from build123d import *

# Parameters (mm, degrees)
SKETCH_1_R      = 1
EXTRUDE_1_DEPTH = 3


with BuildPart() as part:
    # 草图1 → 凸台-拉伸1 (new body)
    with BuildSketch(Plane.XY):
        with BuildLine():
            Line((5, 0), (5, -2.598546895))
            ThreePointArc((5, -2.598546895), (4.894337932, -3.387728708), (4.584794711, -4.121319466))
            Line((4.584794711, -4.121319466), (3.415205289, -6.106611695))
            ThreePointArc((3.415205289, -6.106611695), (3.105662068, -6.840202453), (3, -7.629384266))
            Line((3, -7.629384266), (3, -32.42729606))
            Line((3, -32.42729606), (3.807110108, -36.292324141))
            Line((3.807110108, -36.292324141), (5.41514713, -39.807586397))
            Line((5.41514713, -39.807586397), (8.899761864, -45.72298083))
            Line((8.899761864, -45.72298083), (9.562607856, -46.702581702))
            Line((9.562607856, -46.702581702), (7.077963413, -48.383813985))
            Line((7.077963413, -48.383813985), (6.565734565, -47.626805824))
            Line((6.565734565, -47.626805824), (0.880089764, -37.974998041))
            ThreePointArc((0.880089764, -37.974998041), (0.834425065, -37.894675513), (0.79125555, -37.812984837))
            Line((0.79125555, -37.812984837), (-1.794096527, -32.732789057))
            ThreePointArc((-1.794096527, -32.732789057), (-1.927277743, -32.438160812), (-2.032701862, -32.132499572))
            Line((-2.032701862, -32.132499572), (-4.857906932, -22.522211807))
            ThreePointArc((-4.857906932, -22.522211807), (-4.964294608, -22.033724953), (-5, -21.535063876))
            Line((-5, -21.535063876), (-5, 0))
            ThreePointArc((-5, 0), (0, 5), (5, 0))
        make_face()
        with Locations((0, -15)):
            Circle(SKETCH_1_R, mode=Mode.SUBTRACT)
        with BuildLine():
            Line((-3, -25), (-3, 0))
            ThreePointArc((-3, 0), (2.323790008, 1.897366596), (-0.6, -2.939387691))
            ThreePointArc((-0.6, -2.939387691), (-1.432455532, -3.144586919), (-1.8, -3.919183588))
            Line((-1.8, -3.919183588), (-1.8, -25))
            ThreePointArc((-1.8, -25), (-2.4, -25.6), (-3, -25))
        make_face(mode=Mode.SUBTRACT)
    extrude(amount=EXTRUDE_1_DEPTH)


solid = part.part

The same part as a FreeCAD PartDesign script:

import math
import FreeCAD as App
import Part
import Sketcher
from FreeCAD import Vector

doc = App.newDocument("Part")
body = doc.addObject("PartDesign::Body", "Body")

sketch1 = body.newObject("Sketcher::SketchObject", "Sketch")
sketch1.AttachmentSupport = (doc.getObject("XY_Plane"), [""])
sketch1.MapMode = "FlatFace"
sketch1.addGeometry(Part.LineSegment(Vector(5, -2.6, 0), Vector(5, 0, 0)), False)
sketch1.addGeometry(Part.ArcOfCircle(Part.Circle(Vector(0, 0, 0), Vector(0, 0, 1), 5), math.radians(0), math.radians(180)), False)
sketch1.addGeometry(Part.LineSegment(Vector(-5, 0, 0), Vector(-5, -21.54, 0)), False)
sketch1.addGeometry(Part.ArcOfCircle(Part.Circle(Vector(-1.5, -21.54, 0), Vector(0, 0, 1), 3.5), math.radians(180), math.radians(196.38)), False)
sketch1.addGeometry(Part.LineSegment(Vector(-4.86, -22.52, 0), Vector(-2.03, -32.13, 0)), False)
sketch1.addGeometry(Part.ArcOfCircle(Part.Circle(Vector(1.33, -31.15, 0), Vector(0, 0, 1), 3.5), math.radians(-163.62), math.radians(-153.03)), False)
sketch1.addGeometry(Part.LineSegment(Vector(-1.79, -32.73, 0), Vector(0.79, -37.81, 0)), False)
sketch1.addGeometry(Part.ArcOfCircle(Part.Circle(Vector(3.46, -36.45, 0), Vector(0, 0, 1), 3), math.radians(-153.03), math.radians(-149.5)), False)
sketch1.addGeometry(Part.LineSegment(Vector(0.88, -37.97, 0), Vector(6.57, -47.63, 0)), False)
sketch1.addGeometry(Part.LineSegment(Vector(6.57, -47.63, 0), Vector(7.08, -48.38, 0)), False)
sketch1.addGeometry(Part.LineSegment(Vector(7.08, -48.38, 0), Vector(9.56, -46.7, 0)), False)
sketch1.addGeometry(Part.LineSegment(Vector(9.56, -46.7, 0), Vector(8.9, -45.72, 0)), False)
sketch1.addGeometry(Part.LineSegment(Vector(8.9, -45.72, 0), Vector(5.42, -39.81, 0)), False)
sketch1.addGeometry(Part.LineSegment(Vector(5.42, -39.81, 0), Vector(3.81, -36.29, 0)), False)
sketch1.addGeometry(Part.LineSegment(Vector(3.81, -36.29, 0), Vector(3, -32.43, 0)), False)
sketch1.addGeometry(Part.LineSegment(Vector(3, -32.43, 0), Vector(3, -7.63, 0)), False)
sketch1.addGeometry(Part.ArcOfCircle(Part.Circle(Vector(6, -7.63, 0), Vector(0, 0, 1), 3), math.radians(149), math.radians(180)), False)
sketch1.addGeometry(Part.LineSegment(Vector(3.42, -6.11, 0), Vector(4.58, -4.12, 0)), False)
sketch1.addGeometry(Part.ArcOfCircle(Part.Circle(Vector(2, -2.6, 0), Vector(0, 0, 1), 3), math.radians(-31), math.radians(0)), False)
sketch1.addGeometry(Part.Circle(Vector(0, -15, 0), Vector(0, 0, 1), 1), False)
sketch1.addGeometry(Part.LineSegment(Vector(-3, -25, 0), Vector(-3, 0, 0)), False)
sketch1.addGeometry(Part.ArcOfCircle(Part.Circle(Vector(0, 0, 0), Vector(0, 0, 1), 3), math.radians(-102), math.radians(180)), False)
sketch1.addGeometry(Part.ArcOfCircle(Part.Circle(Vector(-0.8, -3.92, 0), Vector(0, 0, 1), 1), math.radians(78), math.radians(180)), False)
sketch1.addGeometry(Part.LineSegment(Vector(-1.8, -3.92, 0), Vector(-1.8, -25, 0)), False)
sketch1.addGeometry(Part.ArcOfCircle(Part.Circle(Vector(-2.4, -25, 0), Vector(0, 0, 1), 0.6), math.radians(180), math.radians(360)), False)
sketch1.addConstraint(Sketcher.Constraint("Tangent", 0, 2, 1, 1))
sketch1.addConstraint(Sketcher.Constraint("Tangent", 1, 2, 2, 1))
sketch1.addConstraint(Sketcher.Constraint("Tangent", 2, 2, 3, 1))
sketch1.addConstraint(Sketcher.Constraint("Tangent", 3, 2, 4, 1))
sketch1.addConstraint(Sketcher.Constraint("Tangent", 4, 2, 5, 1))
sketch1.addConstraint(Sketcher.Constraint("Tangent", 5, 2, 6, 1))
sketch1.addConstraint(Sketcher.Constraint("Tangent", 6, 2, 7, 1))
sketch1.addConstraint(Sketcher.Constraint("Tangent", 7, 2, 8, 1))
sketch1.addConstraint(Sketcher.Constraint("Coincident", 8, 2, 9, 1))
sketch1.addConstraint(Sketcher.Constraint("Coincident", 9, 2, 10, 1))
sketch1.addConstraint(Sketcher.Constraint("Coincident", 10, 2, 11, 1))
sketch1.addConstraint(Sketcher.Constraint("Coincident", 11, 2, 12, 1))
sketch1.addConstraint(Sketcher.Constraint("Coincident", 12, 2, 13, 1))
sketch1.addConstraint(Sketcher.Constraint("Coincident", 13, 2, 14, 1))
sketch1.addConstraint(Sketcher.Constraint("Coincident", 14, 2, 15, 1))
sketch1.addConstraint(Sketcher.Constraint("Tangent", 15, 2, 16, 2))
sketch1.addConstraint(Sketcher.Constraint("Tangent", 16, 1, 17, 1))
sketch1.addConstraint(Sketcher.Constraint("Tangent", 17, 2, 18, 1))
sketch1.addConstraint(Sketcher.Constraint("Tangent", 18, 2, 0, 1))
sketch1.addConstraint(Sketcher.Constraint("Tangent", 20, 2, 21, 2))
sketch1.addConstraint(Sketcher.Constraint("Tangent", 21, 1, 22, 1))
sketch1.addConstraint(Sketcher.Constraint("Tangent", 22, 2, 23, 1))
sketch1.addConstraint(Sketcher.Constraint("Tangent", 23, 2, 24, 2))
sketch1.addConstraint(Sketcher.Constraint("Tangent", 24, 1, 20, 1))
sketch1.addConstraint(Sketcher.Constraint("Vertical", 0))
sketch1.addConstraint(Sketcher.Constraint("Vertical", 2))
sketch1.addConstraint(Sketcher.Constraint("Vertical", 15))
sketch1.addConstraint(Sketcher.Constraint("Vertical", 20))
sketch1.addConstraint(Sketcher.Constraint("Vertical", 23))
sketch1.addConstraint(Sketcher.Constraint("Coincident", 1, 3, -1, 1))
sketch1.addConstraint(Sketcher.Constraint("Coincident", 21, 3, -1, 1))
sketch1.addConstraint(Sketcher.Constraint("Equal", 3, 5))
sketch1.addConstraint(Sketcher.Constraint("Equal", 7, 16))
sketch1.addConstraint(Sketcher.Constraint("Equal", 16, 18))
sketch1.addConstraint(Sketcher.Constraint("Equal", 18, 21))
sketch1.addConstraint(Sketcher.Constraint("Equal", 19, 22))
sketch1.addConstraint(Sketcher.Constraint("PointOnObject", 19, 3, -2))
sketch1.addConstraint(Sketcher.Constraint("Perpendicular", 9, 10))
sketch1.addConstraint(Sketcher.Constraint("Perpendicular", 10, 11))
sketch1.addConstraint(Sketcher.Constraint("Parallel", 8, 12))
sketch1.addConstraint(Sketcher.Constraint("Diameter", 19, 2.0))
sketch1.addConstraint(Sketcher.Constraint("Radius", 1, 5.0))
sketch1.addConstraint(Sketcher.Constraint("Radius", 7, 2.999999))
sketch1.addConstraint(Sketcher.Constraint("Radius", 3, 3.5))
sketch1.addConstraint(Sketcher.Constraint("Radius", 24, 0.6))
sketch1.addConstraint(Sketcher.Constraint("DistanceY", 20, 1, 20, 2, 25.0))
sketch1.addConstraint(Sketcher.Constraint("Distance", 10, 3.0))
sketch1.addConstraint(Sketcher.Constraint("DistanceX", -1, 1, 16, 3, 6.0))
sketch1.addConstraint(Sketcher.Constraint("DistanceY", 19, 3, -1, 1, 15.0))
sketch1.addConstraint(Sketcher.Constraint("DistanceY", 7, 3, 13, 2, 0.16))
sketch1.addConstraint(Sketcher.Constraint("DistanceY", 7, 2, -1, 1, 37.974998))
sketch1.addConstraint(Sketcher.Constraint("Distance", 13, 3.865599))
sketch1.addConstraint(Sketcher.Constraint("Distance", 14, 3.948401))
sketch1.addConstraint(Sketcher.Constraint("DistanceY", 15, 1, 15, 2, 24.797912))
sketch1.addConstraint(Sketcher.Constraint("DistanceX", 4, 2, -1, 1, 2.032702))
sketch1.addConstraint(Sketcher.Constraint("DistanceY", 4, 2, -1, 1, 32.1325))
sketch1.addConstraint(Sketcher.Constraint("DistanceY", 16, 3, 22, 3, 3.710201))
sketch1.addConstraint(Sketcher.Constraint("DistanceX", 5, 2, 5, 3, 3.119302))
sketch1.addConstraint(Sketcher.Constraint("DistanceY", 10, 2, 11, 2, 0.979601))
sketch1.addConstraint(Sketcher.Constraint("DistanceX", 9, 2, 11, 2, 1.821798))
sketch1.addConstraint(Sketcher.Constraint("DistanceY", 12, 2, 6, 2, 1.994602))
sketch1.addConstraint(Sketcher.Constraint("Distance", 8, 11.201962))
sketch1.addConstraint(Sketcher.Constraint("Distance", 12, 6.865452))
sketch1.addConstraint(Sketcher.Constraint("DistanceY", 0, 1, 0, 2, 2.598547))
sketch1.addConstraint(Sketcher.Constraint("DistanceY", 2, 2, 2, 1, 21.535064))
pad1 = body.newObject("PartDesign::Pad", "Pad")
pad1.Profile = sketch1
pad1.Length = 3

doc.recompute()
